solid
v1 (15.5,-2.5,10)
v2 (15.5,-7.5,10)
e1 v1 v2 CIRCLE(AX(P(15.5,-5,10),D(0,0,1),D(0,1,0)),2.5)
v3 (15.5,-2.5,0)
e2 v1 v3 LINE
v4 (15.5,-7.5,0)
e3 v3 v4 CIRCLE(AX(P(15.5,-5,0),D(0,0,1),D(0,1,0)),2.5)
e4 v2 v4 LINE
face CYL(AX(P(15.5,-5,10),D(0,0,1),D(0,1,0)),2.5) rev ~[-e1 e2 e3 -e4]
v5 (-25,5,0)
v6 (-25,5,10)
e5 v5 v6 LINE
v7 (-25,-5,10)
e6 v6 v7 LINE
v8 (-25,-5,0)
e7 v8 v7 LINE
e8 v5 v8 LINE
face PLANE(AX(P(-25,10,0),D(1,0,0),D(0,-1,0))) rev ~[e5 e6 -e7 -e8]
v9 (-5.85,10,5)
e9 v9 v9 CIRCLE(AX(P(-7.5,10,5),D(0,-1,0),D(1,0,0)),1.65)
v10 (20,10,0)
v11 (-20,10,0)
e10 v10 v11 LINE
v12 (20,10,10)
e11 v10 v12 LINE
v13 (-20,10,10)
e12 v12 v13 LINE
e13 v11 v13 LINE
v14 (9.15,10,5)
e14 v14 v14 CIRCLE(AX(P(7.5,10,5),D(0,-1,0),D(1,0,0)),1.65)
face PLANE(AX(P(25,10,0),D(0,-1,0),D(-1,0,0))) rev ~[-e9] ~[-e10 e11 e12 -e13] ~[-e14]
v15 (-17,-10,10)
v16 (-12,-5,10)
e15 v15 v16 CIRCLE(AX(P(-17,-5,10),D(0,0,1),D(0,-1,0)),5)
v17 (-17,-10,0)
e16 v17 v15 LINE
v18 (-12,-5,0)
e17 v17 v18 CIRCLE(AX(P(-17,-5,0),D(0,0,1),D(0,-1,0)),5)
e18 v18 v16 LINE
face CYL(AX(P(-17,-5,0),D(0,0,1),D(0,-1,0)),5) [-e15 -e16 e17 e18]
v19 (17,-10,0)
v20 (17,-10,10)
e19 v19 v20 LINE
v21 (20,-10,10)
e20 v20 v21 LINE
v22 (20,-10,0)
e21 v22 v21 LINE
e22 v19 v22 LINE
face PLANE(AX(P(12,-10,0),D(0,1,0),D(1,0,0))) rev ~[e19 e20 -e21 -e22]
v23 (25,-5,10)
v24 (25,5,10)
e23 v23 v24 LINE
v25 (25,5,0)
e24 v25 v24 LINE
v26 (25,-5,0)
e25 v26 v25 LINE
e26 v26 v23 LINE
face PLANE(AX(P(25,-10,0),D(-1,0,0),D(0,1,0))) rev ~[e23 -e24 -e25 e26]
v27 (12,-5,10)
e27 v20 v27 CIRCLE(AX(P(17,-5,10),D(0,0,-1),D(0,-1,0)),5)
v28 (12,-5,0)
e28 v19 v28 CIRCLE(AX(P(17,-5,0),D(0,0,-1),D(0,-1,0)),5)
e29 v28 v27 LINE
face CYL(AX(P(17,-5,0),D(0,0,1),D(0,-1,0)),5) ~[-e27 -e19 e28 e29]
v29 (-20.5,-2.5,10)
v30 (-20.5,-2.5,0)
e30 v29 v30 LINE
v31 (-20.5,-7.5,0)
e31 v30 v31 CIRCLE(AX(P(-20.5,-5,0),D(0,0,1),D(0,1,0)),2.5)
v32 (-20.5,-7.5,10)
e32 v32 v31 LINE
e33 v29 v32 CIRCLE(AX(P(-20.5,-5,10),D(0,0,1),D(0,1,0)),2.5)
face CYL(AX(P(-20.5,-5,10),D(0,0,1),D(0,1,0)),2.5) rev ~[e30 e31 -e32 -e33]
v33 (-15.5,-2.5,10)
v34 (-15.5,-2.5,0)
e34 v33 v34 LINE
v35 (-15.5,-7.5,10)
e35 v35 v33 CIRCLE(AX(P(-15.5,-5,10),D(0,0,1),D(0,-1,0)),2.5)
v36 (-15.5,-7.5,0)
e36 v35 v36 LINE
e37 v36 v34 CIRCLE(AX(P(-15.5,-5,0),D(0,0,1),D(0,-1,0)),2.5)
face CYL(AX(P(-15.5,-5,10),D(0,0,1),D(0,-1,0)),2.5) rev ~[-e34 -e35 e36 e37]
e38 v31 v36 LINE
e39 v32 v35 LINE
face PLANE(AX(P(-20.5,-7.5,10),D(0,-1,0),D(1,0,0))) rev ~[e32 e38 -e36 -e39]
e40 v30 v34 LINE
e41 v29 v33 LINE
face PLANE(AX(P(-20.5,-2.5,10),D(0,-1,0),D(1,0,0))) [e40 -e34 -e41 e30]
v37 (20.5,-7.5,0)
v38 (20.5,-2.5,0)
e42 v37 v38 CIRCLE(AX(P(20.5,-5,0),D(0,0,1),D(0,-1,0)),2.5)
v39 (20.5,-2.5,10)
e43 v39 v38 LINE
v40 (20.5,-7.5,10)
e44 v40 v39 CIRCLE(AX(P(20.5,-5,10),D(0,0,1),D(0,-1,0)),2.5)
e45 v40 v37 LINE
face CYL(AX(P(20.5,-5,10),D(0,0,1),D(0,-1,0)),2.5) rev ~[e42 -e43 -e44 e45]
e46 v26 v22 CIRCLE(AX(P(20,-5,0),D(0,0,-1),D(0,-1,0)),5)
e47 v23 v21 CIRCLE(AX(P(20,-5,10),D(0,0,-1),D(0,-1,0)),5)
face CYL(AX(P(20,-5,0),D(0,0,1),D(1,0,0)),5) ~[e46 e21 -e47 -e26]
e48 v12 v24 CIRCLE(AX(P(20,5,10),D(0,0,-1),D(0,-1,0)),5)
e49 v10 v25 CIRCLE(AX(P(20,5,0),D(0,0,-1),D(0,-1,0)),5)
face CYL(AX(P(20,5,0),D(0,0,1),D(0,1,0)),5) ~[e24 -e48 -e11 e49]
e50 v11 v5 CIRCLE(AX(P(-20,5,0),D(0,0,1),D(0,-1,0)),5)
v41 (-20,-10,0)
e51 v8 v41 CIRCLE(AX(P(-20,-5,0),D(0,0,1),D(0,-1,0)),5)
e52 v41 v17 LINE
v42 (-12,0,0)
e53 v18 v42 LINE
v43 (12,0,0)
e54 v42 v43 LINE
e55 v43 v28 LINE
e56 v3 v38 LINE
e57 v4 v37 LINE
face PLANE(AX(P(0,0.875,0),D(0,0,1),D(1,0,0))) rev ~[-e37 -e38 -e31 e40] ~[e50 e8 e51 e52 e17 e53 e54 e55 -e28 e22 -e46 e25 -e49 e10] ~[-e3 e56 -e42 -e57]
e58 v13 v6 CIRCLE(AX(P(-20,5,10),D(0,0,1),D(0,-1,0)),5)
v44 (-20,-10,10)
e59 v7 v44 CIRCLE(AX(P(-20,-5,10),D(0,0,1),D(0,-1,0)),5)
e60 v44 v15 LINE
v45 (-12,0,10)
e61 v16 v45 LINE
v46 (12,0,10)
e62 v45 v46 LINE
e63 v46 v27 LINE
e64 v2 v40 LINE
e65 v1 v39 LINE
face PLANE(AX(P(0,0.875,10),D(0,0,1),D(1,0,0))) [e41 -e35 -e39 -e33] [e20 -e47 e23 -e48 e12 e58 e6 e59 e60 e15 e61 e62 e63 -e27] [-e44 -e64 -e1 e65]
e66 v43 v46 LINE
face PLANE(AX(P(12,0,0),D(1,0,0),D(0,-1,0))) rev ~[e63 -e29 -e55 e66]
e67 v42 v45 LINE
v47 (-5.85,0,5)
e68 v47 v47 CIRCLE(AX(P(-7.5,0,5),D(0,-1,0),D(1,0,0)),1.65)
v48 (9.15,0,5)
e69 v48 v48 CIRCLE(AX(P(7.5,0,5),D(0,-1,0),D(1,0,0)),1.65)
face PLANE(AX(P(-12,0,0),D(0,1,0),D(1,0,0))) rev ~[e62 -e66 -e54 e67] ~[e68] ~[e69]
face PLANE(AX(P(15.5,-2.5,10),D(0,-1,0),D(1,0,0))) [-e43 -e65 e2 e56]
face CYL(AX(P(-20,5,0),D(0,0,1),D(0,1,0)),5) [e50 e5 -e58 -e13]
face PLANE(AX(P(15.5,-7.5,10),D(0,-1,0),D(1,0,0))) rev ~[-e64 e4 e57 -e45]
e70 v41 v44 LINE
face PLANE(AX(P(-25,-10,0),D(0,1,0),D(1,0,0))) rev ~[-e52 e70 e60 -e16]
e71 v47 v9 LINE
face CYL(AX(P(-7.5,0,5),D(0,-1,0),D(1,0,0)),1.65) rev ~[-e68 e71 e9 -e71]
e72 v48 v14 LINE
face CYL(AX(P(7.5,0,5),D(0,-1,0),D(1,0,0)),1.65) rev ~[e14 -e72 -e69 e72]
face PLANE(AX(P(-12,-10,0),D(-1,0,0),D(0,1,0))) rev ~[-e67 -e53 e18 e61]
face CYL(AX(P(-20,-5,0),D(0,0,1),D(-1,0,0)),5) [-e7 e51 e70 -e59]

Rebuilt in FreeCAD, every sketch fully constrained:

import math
import FreeCAD as App
import Part
import Sketcher

V = App.Vector


def edges_at(feature, points):
    """Names of the edges that pass closest to the given points."""
    edges = feature.Shape.Edges
    near = lambda p: min(range(len(edges)), key=lambda i: edges[i].distToShape(Part.Vertex(*p))[0])
    return sorted({f"Edge{near(p) + 1}" for p in points})

doc = App.newDocument("Part")
body = doc.addObject("PartDesign::Body", "Body")

sketch1 = body.newObject("Sketcher::SketchObject", "Sketch")
sketch1.AttachmentSupport = (doc.getObject("XY_Plane"), [""])
sketch1.MapMode = "FlatFace"
sketch1.addGeometry(Part.LineSegment(V(25, 10, 0), V(-25, 10, 0)), False)
sketch1.addGeometry(Part.LineSegment(V(-25, 10, 0), V(-25, -10, 0)), False)
sketch1.addGeometry(Part.LineSegment(V(-25, -10, 0), V(-12, -10, 0)), False)
sketch1.addGeometry(Part.LineSegment(V(-12, -10, 0), V(-12, 0, 0)), False)
sketch1.addGeometry(Part.LineSegment(V(-12, 0, 0), V(12, 0, 0)), False)
sketch1.addGeometry(Part.LineSegment(V(12, 0, 0), V(12, -10, 0)), False)
sketch1.addGeometry(Part.LineSegment(V(12, -10, 0), V(25, -10, 0)), False)
sketch1.addGeometry(Part.LineSegment(V(25, -10, 0), V(25, 10, 0)), False)
sketch1.addConstraint(Sketcher.Constraint("Coincident", 0, 2, 1, 1))
sketch1.addConstraint(Sketcher.Constraint("Coincident", 1, 2, 2, 1))
sketch1.addConstraint(Sketcher.Constraint("Coincident", 2, 2, 3, 1))
sketch1.addConstraint(Sketcher.Constraint("Coincident", 3, 2, 4, 1))
sketch1.addConstraint(Sketcher.Constraint("Coincident", 4, 2, 5, 1))
sketch1.addConstraint(Sketcher.Constraint("Coincident", 5, 2, 6, 1))
sketch1.addConstraint(Sketcher.Constraint("Coincident", 6, 2, 7, 1))
sketch1.addConstraint(Sketcher.Constraint("Coincident", 7, 2, 0, 1))
sketch1.addConstraint(Sketcher.Constraint("Horizontal", 0))
sketch1.addConstraint(Sketcher.Constraint("Vertical", 1))
sketch1.addConstraint(Sketcher.Constraint("Horizontal", 2))
sketch1.addConstraint(Sketcher.Constraint("Vertical", 3))
sketch1.addConstraint(Sketcher.Constraint("Horizontal", 4))
sketch1.addConstraint(Sketcher.Constraint("Vertical", 5))
sketch1.addConstraint(Sketcher.Constraint("Horizontal", 6))
sketch1.addConstraint(Sketcher.Constraint("Vertical", 7))
sketch1.addConstraint(Sketcher.Constraint("Symmetric", 3, 2, 4, 2, -1, 1))
sketch1.addConstraint(Sketcher.Constraint("Symmetric", 0, 2, 6, 2, -1, 1))
sketch1.addConstraint(Sketcher.Constraint("Horizontal", 2, 2, 5, 2))
sketch1.addConstraint(Sketcher.Constraint("DistanceX", 0, 2, 0, 1, 50.0))
sketch1.addConstraint(Sketcher.Constraint("DistanceX", 2, 1, 2, 2, 13.0))
sketch1.addConstraint(Sketcher.Constraint("DistanceY", 1, 2, 1, 1, 20.0))
pad1 = body.newObject("PartDesign::Pad", "Pad")
pad1.Profile = sketch1
pad1.Length = 10

sketch2 = body.newObject("Sketcher::SketchObject", "Sketch001")
sketch2.AttachmentSupport = (doc.getObject("XY_Plane"), [""])
sketch2.MapMode = "FlatFace"
sketch2.AttachmentOffset = App.Placement(V(0, 0, 10), App.Rotation())
sketch2.addGeometry(Part.LineSegment(V(-20.5, -7.5, 0), V(-15.5, -7.5, 0)), False)
sketch2.addGeometry(Part.ArcOfCircle(Part.Circle(V(-15.5, -5, 0), V(0, 0, 1), 2.5), math.radians(-90), math.radians(90)), False)
sketch2.addGeometry(Part.LineSegment(V(-15.5, -2.5, 0), V(-20.5, -2.5, 0)), False)
sketch2.addGeometry(Part.ArcOfCircle(Part.Circle(V(-20.5, -5, 0), V(0, 0, 1), 2.5), math.radians(90), math.radians(270)), False)
sketch2.addGeometry(Part.LineSegment(V(15.5, -7.5, 0), V(20.5, -7.5, 0)), False)
sketch2.addGeometry(Part.ArcOfCircle(Part.Circle(V(20.5, -5, 0), V(0, 0, 1), 2.5), math.radians(-90), math.radians(90)), False)
sketch2.addGeometry(Part.LineSegment(V(20.5, -2.5, 0), V(15.5, -2.5, 0)), False)
sketch2.addGeometry(Part.ArcOfCircle(Part.Circle(V(15.5, -5, 0), V(0, 0, 1), 2.5), math.radians(90), math.radians(270)), False)
sketch2.addConstraint(Sketcher.Constraint("Tangent", 0, 2, 1, 1))
sketch2.addConstraint(Sketcher.Constraint("Tangent", 1, 2, 2, 1))
sketch2.addConstraint(Sketcher.Constraint("Tangent", 2, 2, 3, 1))
sketch2.addConstraint(Sketcher.Constraint("Tangent", 3, 2, 0, 1))
sketch2.addConstraint(Sketcher.Constraint("Tangent", 4, 2, 5, 1))
sketch2.addConstraint(Sketcher.Constraint("Tangent", 5, 2, 6, 1))
sketch2.addConstraint(Sketcher.Constraint("Tangent", 6, 2, 7, 1))
sketch2.addConstraint(Sketcher.Constraint("Tangent", 7, 2, 4, 1))
sketch2.addConstraint(Sketcher.Constraint("Horizontal", 0))
sketch2.addConstraint(Sketcher.Constraint("Horizontal", 2))
sketch2.addConstraint(Sketcher.Constraint("Horizontal", 4))
sketch2.addConstraint(Sketcher.Constraint("Horizontal", 6))
sketch2.addConstraint(Sketcher.Constraint("Equal", 3, 5))
sketch2.addConstraint(Sketcher.Constraint("Symmetric", 3, 3, 5, 3, -2))
sketch2.addConstraint(Sketcher.Constraint("Equal", 2, 4))
sketch2.addConstraint(Sketcher.Constraint("Radius", 1, 2.5))
sketch2.addConstraint(Sketcher.Constraint("DistanceX", 0, 1, 0, 2, 5.0))
sketch2.addConstraint(Sketcher.Constraint("DistanceY", 1, 3, -1, 1, 5.0))
sketch2.addConstraint(Sketcher.Constraint("DistanceX", 1, 3, 5, 3, 36.0))
pocket1 = body.newObject("PartDesign::Pocket", "Pocket")
pocket1.Profile = sketch2
pocket1.Length = 10

sketch3 = body.newObject("Sketcher::SketchObject", "Sketch002")
sketch3.AttachmentSupport = (doc.getObject("XZ_Plane"), [""])
sketch3.MapMode = "FlatFace"
sketch3.addGeometry(Part.Circle(V(-7.5, 5, 0), V(0, 0, 1), 1.6), False)
sketch3.addGeometry(Part.Circle(V(7.5, 5, 0), V(0, 0, 1), 1.6), False)
sketch3.addConstraint(Sketcher.Constraint("Equal", 0, 1))
sketch3.addConstraint(Sketcher.Constraint("Symmetric", 0, 3, 1, 3, -2))
sketch3.addConstraint(Sketcher.Constraint("Diameter", 0, 3.3))
sketch3.addConstraint(Sketcher.Constraint("DistanceY", -1, 1, 0, 3, 5.0))
sketch3.addConstraint(Sketcher.Constraint("DistanceX", 0, 3, 1, 3, 15.0))
pocket2 = body.newObject("PartDesign::Pocket", "Pocket001")
pocket2.Profile = sketch3
pocket2.Type = "ThroughAll"
doc.recompute()

fillet = body.newObject("PartDesign::Fillet", "Fillet")
fillet.Base = (pocket2, edges_at(pocket2, [
    (-25, -10, 5),
    (-12, -10, 5),
    (12, -10, 5),
    (25, -10, 5),
    (25, 10, 5),
    (-25, 10, 5),
]))
fillet.Radius = 5

doc.recompute()
